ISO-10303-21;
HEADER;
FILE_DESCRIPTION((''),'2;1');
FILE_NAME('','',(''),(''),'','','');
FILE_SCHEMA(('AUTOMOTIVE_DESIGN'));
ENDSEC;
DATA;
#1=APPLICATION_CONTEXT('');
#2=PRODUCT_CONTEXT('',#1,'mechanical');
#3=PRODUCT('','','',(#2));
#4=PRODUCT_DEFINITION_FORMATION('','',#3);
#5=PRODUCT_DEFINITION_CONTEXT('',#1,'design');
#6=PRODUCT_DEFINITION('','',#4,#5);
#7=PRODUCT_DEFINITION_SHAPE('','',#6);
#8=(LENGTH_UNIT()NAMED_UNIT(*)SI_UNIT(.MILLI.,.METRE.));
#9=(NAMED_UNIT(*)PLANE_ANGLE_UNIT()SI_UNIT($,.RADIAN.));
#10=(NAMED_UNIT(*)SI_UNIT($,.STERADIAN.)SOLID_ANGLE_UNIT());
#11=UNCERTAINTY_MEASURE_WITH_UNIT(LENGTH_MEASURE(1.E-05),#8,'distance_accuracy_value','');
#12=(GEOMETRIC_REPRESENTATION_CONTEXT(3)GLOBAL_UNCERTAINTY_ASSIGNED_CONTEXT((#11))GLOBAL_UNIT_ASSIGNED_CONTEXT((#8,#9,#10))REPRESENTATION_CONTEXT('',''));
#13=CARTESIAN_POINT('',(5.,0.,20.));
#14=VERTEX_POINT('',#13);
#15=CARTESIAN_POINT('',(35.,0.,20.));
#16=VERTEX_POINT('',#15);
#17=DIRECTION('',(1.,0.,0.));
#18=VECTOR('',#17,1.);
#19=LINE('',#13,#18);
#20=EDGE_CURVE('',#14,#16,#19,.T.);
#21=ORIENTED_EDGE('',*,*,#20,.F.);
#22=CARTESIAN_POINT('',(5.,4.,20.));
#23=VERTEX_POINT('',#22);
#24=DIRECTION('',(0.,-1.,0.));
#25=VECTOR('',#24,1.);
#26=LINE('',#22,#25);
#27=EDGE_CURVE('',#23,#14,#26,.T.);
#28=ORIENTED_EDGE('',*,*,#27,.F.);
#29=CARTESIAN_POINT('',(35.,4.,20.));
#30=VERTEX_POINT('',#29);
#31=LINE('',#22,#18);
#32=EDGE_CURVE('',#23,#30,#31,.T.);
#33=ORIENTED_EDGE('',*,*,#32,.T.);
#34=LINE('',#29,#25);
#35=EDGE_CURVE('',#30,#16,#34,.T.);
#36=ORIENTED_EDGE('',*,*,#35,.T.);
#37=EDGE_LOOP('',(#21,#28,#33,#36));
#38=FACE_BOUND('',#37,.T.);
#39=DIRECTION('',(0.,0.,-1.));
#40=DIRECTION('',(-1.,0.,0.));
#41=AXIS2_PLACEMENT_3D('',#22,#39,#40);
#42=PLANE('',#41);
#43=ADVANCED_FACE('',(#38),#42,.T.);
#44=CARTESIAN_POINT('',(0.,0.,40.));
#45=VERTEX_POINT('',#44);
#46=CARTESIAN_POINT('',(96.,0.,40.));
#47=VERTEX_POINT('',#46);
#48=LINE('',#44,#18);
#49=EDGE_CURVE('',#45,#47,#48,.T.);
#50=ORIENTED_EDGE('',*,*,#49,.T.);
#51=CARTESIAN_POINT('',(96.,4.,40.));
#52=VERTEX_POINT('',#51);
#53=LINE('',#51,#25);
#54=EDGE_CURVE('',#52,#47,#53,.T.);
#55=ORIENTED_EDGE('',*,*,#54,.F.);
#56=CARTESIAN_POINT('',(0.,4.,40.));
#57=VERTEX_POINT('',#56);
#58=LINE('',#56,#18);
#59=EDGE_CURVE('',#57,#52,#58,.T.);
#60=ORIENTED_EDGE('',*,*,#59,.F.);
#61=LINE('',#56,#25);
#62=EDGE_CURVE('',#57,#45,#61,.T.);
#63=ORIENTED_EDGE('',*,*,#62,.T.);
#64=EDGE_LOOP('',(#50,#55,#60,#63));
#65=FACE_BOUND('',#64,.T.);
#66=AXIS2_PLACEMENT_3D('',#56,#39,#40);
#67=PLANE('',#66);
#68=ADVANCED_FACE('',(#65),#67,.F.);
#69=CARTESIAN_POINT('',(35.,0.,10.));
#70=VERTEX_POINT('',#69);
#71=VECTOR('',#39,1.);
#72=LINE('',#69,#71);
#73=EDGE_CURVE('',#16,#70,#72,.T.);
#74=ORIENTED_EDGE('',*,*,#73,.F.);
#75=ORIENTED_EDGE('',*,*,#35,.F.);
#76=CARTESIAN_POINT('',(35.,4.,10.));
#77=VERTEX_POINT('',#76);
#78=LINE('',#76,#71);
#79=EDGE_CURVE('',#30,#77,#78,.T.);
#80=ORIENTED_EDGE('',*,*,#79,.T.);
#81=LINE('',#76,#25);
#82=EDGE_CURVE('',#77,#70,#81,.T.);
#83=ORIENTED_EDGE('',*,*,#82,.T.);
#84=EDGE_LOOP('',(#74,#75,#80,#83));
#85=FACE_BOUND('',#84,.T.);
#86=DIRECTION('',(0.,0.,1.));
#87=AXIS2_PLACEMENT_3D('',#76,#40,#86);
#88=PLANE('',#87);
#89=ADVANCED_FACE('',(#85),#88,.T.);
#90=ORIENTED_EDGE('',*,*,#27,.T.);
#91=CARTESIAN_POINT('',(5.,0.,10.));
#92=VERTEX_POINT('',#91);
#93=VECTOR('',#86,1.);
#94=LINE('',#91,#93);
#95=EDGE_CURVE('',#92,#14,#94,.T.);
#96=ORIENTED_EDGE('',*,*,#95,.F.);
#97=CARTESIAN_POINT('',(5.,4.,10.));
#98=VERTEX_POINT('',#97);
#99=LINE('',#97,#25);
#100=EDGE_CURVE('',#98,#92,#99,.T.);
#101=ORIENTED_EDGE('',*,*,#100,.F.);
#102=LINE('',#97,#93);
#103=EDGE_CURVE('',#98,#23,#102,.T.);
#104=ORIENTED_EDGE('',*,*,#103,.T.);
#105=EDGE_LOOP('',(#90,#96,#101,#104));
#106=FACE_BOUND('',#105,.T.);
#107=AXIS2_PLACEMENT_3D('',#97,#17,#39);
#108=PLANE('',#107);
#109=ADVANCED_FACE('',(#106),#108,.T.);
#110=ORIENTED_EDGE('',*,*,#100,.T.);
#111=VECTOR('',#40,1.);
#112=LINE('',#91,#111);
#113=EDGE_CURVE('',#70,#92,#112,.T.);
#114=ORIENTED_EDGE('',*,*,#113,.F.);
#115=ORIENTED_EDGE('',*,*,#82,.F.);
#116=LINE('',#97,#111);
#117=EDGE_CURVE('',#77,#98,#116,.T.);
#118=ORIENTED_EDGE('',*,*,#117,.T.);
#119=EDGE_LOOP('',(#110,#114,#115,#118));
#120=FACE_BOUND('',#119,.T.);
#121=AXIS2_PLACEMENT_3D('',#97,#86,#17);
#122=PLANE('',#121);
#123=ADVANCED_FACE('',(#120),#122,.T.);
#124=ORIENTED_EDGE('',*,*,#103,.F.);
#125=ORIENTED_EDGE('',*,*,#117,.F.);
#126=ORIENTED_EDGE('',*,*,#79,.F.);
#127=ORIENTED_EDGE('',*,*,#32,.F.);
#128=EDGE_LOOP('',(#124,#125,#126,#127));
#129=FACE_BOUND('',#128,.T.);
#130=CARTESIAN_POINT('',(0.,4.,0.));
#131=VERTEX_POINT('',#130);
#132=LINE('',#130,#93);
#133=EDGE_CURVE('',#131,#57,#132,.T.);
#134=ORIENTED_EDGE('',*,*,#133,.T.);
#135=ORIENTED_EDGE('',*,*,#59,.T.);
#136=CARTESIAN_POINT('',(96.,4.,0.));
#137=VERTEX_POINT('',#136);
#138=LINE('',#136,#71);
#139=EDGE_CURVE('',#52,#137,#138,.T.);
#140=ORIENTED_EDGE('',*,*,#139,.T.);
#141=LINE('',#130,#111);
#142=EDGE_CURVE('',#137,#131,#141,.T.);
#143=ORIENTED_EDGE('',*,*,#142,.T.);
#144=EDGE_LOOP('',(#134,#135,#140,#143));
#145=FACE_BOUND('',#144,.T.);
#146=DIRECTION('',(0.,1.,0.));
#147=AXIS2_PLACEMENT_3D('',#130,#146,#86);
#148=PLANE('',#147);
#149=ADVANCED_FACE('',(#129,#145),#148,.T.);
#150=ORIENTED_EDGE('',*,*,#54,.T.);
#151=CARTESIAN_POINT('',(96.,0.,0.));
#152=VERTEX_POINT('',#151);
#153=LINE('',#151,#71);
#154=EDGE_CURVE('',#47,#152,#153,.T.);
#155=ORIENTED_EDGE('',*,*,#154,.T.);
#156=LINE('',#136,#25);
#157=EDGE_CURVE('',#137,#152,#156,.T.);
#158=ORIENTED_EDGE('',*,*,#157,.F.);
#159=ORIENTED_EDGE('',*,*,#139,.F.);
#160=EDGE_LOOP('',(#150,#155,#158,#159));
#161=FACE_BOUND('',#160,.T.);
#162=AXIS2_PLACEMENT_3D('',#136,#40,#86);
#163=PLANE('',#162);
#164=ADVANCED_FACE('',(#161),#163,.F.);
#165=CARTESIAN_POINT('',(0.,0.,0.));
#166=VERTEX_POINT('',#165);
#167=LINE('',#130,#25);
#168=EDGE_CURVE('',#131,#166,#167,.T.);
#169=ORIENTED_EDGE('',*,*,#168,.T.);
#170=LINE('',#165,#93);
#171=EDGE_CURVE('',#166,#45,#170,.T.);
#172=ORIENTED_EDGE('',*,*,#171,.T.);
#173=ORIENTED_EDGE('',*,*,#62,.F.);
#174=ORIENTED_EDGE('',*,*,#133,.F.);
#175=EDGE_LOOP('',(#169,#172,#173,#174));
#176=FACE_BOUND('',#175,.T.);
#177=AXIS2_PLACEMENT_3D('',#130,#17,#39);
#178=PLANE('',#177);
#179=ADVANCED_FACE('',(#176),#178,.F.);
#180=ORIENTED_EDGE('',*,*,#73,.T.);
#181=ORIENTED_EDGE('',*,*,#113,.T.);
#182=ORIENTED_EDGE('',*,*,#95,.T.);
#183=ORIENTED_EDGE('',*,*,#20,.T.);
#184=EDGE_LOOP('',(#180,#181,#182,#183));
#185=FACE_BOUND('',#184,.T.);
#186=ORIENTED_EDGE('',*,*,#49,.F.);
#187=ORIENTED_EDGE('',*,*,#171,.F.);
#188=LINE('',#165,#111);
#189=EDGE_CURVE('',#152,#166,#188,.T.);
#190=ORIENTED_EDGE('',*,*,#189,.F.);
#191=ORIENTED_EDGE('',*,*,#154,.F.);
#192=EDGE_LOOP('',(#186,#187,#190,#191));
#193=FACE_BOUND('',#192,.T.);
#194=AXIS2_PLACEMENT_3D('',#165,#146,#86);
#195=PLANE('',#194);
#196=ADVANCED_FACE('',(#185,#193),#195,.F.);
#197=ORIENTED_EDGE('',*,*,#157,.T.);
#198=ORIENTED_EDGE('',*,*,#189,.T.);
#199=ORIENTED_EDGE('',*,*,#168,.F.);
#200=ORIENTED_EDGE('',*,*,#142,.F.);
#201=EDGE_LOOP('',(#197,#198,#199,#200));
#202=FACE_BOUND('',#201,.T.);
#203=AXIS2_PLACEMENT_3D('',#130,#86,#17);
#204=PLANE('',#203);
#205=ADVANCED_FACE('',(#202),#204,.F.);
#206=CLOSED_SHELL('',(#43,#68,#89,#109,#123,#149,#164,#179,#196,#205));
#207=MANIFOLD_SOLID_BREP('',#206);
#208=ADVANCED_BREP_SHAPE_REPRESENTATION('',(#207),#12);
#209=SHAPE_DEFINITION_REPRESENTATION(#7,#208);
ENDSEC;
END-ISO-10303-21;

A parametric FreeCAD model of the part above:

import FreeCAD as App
import Part
import Sketcher

V = App.Vector


def add_polygon(sketch, points):
    """Adds a closed chain of lines whose ends are joined by coincident constraints."""
    first, n = sketch.GeometryCount, len(points)
    for a, b in zip(points, points[1:] + points[:1]):
        sketch.addGeometry(Part.LineSegment(App.Vector(*a, 0), App.Vector(*b, 0)), False)
    for i in range(n):
        sketch.addConstraint(Sketcher.Constraint("Coincident", first + i, 2, first + (i + 1) % n, 1))

doc = App.newDocument("Part")
params = doc.addObject("Spreadsheet::Sheet", "Params")
for row, (alias, value) in enumerate([
    ("sketch1_width", "96 mm"),
    ("sketch1_width2", "30 mm"),
    ("sketch1_height", "40 mm"),
    ("sketch1_height2", "10 mm"),
    ("pad1_length", "4 mm"),
], start=1):
    params.set(f"A{row}", alias)
    params.set(f"B{row}", "=" + value)
    params.setAlias(f"B{row}", alias)

body = doc.addObject("PartDesign::Body", "Body")

sketch1 = body.newObject("Sketcher::SketchObject", "Sketch")
sketch1.AttachmentSupport = (doc.getObject("XZ_Plane"), [""])
sketch1.MapMode = "FlatFace"
add_polygon(sketch1, [(0, 0), (0, 40), (96, 40), (96, 0)])
add_polygon(sketch1, [(35, 20), (5, 20), (5, 10), (35, 10)])
sketch1.addConstraint(Sketcher.Constraint("Vertical", 0))
sketch1.addConstraint(Sketcher.Constraint("Horizontal", 1))
sketch1.addConstraint(Sketcher.Constraint("Vertical", 2))
sketch1.addConstraint(Sketcher.Constraint("Horizontal", 3))
sketch1.addConstraint(Sketcher.Constraint("Horizontal", 4))
sketch1.addConstraint(Sketcher.Constraint("Vertical", 5))
sketch1.addConstraint(Sketcher.Constraint("Horizontal", 6))
sketch1.addConstraint(Sketcher.Constraint("Vertical", 7))
sketch1.addConstraint(Sketcher.Constraint("Coincident", 3, 2, -1, 1))
sketch1.addConstraint(Sketcher.Constraint("DistanceX", 1, 1, 1, 2, 96.0))
sketch1.addConstraint(Sketcher.Constraint("DistanceX", 4, 2, 4, 1, 30.0))
sketch1.addConstraint(Sketcher.Constraint("DistanceY", 0, 1, 0, 2, 40.0))
sketch1.addConstraint(Sketcher.Constraint("DistanceY", 5, 2, 5, 1, 10.0))
sketch1.addConstraint(Sketcher.Constraint("DistanceX", -1, 1, 4, 2, 5.0))
sketch1.addConstraint(Sketcher.Constraint("DistanceY", -1, 1, 4, 2, 20.0))
sketch1.setExpression("Constraints[17]", "Params.sketch1_width")
sketch1.setExpression("Constraints[18]", "Params.sketch1_width2")
sketch1.setExpression("Constraints[19]", "Params.sketch1_height")
sketch1.setExpression("Constraints[20]", "Params.sketch1_height2")
pad1 = body.newObject("PartDesign::Pad", "Pad")
pad1.Profile = sketch1
pad1.setExpression("Length", "Params.pad1_length")
pad1.Reversed = True

doc.recompute()
